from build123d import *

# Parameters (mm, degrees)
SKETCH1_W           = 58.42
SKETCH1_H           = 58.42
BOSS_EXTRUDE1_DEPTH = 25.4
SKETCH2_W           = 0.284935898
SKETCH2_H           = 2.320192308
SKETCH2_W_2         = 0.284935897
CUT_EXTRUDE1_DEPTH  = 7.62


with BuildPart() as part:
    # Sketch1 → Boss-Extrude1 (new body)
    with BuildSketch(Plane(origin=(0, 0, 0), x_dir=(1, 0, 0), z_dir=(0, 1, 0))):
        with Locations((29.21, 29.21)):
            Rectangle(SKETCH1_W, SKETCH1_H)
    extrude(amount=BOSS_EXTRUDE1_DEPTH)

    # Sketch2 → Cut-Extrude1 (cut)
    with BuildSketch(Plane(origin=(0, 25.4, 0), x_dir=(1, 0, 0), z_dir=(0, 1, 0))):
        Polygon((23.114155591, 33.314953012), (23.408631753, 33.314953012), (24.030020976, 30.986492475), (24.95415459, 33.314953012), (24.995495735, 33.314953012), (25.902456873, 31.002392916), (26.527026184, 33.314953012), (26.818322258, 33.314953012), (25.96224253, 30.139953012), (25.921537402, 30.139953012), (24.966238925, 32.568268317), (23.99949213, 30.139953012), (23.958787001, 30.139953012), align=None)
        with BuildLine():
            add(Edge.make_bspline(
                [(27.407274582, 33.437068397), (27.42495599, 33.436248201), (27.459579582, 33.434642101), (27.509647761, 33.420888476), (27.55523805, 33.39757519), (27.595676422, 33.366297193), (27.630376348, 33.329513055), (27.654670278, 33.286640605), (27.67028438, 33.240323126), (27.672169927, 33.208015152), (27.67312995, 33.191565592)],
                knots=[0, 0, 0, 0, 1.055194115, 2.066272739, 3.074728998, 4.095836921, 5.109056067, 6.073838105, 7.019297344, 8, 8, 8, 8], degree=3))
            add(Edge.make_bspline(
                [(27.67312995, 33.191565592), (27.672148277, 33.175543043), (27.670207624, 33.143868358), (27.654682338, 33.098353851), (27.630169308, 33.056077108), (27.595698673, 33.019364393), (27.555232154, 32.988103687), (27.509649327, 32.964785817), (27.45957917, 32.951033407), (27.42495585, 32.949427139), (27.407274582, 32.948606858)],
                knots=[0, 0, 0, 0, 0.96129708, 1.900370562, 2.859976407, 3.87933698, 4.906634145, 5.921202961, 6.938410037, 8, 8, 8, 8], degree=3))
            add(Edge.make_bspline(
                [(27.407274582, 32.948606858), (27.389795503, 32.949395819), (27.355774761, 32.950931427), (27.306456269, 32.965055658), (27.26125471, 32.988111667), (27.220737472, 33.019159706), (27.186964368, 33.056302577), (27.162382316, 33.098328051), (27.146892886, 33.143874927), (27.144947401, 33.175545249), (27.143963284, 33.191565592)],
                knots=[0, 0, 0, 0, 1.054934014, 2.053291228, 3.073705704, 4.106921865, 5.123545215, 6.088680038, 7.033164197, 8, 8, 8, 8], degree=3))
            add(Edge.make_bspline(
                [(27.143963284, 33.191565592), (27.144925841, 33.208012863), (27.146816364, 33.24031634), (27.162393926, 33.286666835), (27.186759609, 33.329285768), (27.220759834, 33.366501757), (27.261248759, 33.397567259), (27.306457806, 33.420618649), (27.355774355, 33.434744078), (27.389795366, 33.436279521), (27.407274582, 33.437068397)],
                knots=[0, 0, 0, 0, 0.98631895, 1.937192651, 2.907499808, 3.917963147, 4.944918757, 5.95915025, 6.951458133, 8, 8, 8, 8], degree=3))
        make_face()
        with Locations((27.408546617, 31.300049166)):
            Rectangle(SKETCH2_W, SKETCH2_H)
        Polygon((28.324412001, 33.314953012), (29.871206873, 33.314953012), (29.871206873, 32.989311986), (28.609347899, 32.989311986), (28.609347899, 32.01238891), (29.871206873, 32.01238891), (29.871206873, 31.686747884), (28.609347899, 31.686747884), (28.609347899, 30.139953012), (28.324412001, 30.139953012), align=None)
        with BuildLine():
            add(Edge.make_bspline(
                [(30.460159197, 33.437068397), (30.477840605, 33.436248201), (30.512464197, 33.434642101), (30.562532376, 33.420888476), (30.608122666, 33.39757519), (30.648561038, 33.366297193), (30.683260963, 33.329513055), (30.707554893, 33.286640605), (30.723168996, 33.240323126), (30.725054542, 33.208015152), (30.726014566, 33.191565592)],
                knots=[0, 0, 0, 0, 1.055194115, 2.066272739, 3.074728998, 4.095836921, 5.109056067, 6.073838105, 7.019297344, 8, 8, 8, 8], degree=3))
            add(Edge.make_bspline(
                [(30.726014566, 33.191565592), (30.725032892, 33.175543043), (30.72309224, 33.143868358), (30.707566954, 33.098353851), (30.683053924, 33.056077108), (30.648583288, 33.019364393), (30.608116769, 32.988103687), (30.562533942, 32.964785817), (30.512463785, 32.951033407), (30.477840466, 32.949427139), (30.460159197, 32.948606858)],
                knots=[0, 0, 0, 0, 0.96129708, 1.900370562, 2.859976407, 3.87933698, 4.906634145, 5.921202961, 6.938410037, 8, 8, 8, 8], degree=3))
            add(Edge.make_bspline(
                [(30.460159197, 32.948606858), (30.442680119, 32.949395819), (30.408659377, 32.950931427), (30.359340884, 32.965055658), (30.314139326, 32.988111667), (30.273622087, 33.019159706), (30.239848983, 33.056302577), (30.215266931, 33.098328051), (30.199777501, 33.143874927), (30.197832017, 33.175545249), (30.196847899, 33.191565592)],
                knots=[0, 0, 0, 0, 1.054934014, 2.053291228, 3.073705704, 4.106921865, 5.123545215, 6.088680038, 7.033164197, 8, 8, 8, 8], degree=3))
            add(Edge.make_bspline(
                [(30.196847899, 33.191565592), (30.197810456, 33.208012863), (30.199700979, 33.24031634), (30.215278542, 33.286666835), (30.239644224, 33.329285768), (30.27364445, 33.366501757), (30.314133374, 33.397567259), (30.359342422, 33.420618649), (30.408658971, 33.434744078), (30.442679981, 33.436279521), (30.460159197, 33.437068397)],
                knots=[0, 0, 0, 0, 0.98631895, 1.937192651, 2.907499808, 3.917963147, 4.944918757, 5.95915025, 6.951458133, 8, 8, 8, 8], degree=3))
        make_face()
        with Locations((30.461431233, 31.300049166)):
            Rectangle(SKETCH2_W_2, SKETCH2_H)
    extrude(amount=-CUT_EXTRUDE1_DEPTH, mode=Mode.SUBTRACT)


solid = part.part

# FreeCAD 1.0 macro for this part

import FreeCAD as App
import Part
import Sketcher
Q = App.Units.Quantity


def add_polygon(sketch, points):
    """Adds a closed chain of lines whose ends are joined by coincident constraints."""
    first, n = sketch.GeometryCount, len(points)
    for a, b in zip(points, points[1:] + points[:1]):
        sketch.addGeometry(Part.LineSegment(App.Vector(*a, 0), App.Vector(*b, 0)), False)
    for i in range(n):
        sketch.addConstraint(Sketcher.Constraint("Coincident", first + i, 2, first + (i + 1) % n, 1))

doc = App.newDocument("Part")
body = doc.addObject("PartDesign::Body", "Body")

sketch1 = body.newObject("Sketcher::SketchObject", "Sketch")
sketch1.AttachmentSupport = (doc.getObject("XZ_Plane"), [""])
sketch1.MapMode = "FlatFace"
add_polygon(sketch1, [(0, -58), (0, 0), (58, 0), (58, -58)])
sketch1.addConstraint([
    Sketcher.Constraint("Vertical", 0),
    Sketcher.Constraint("Horizontal", 1),
    Sketcher.Constraint("Vertical", 2),
    Sketcher.Constraint("Horizontal", 3),
    Sketcher.Constraint("Coincident", 0, 2, -1, 1),
    Sketcher.Constraint("Equal", 3, 0),
    Sketcher.Constraint("DistanceX", 1, 1, 1, 2, Q("2.3 in")),
])
pad1 = body.newObject("PartDesign::Pad", "Pad")
pad1.Profile = sketch1
pad1.Length = Q("1 in")
pad1.Reversed = True

sketch2 = body.newObject("Sketcher::SketchObject", "Sketch001")
sketch2.AttachmentSupport = (doc.getObject("XZ_Plane"), [""])
sketch2.MapMode = "FlatFace"
sketch2.AttachmentOffset = App.Placement(App.Vector(0, 0, -1 * 25.4), App.Rotation())
add_polygon(sketch2, [(23.408632, -33.314953), (23.114156, -33.314953), (23.958787, -30.139953), (23.999492, -30.139953), (24.966239, -32.568268), (25.921537, -30.139953), (25.962243, -30.139953), (26.818322, -33.314953), (26.527026, -33.314953), (25.902457, -31.002393), (24.995496, -33.314953), (24.954155, -33.314953), (24.030021, -30.986492)])
sketch2.addGeometry(Part.BSplineCurve([App.Vector(27.407275, -33.437068, 0), App.Vector(27.424956, -33.436248, 0), App.Vector(27.45958, -33.434642, 0), App.Vector(27.509648, -33.420888, 0), App.Vector(27.555238, -33.397575, 0), App.Vector(27.595676, -33.366297, 0), App.Vector(27.630376, -33.329513, 0), App.Vector(27.65467, -33.286641, 0), App.Vector(27.670284, -33.240323, 0), App.Vector(27.67217, -33.208015, 0), App.Vector(27.67313, -33.191566, 0)], [4, 1, 1, 1, 1, 1, 1, 1, 4], [0, 1.055194115, 2.066272739, 3.074728998, 4.095836921, 5.109056067, 6.073838105, 7.019297344, 8], False, 3, [1, 1, 1, 1, 1, 1, 1, 1, 1, 1, 1], False), False)
sketch2.addGeometry(Part.BSplineCurve([App.Vector(27.143963, -33.191566, 0), App.Vector(27.144926, -33.208013, 0), App.Vector(27.146816, -33.240316, 0), App.Vector(27.162394, -33.286667, 0), App.Vector(27.18676, -33.329286, 0), App.Vector(27.22076, -33.366502, 0), App.Vector(27.261249, -33.397567, 0), App.Vector(27.306458, -33.420619, 0), App.Vector(27.355774, -33.434744, 0), App.Vector(27.389795, -33.43628, 0), App.Vector(27.407275, -33.437068, 0)], [4, 1, 1, 1, 1, 1, 1, 1, 4], [0, 0.98631895, 1.937192651, 2.907499808, 3.917963147, 4.944918757, 5.95915025, 6.951458133, 8], False, 3, [1, 1, 1, 1, 1, 1, 1, 1, 1, 1, 1], False), False)
sketch2.addGeometry(Part.BSplineCurve([App.Vector(27.407275, -32.948607, 0), App.Vector(27.389796, -32.949396, 0), App.Vector(27.355775, -32.950931, 0), App.Vector(27.306456, -32.965056, 0), App.Vector(27.261255, -32.988112, 0), App.Vector(27.220737, -33.01916, 0), App.Vector(27.186964, -33.056303, 0), App.Vector(27.162382, -33.098328, 0), App.Vector(27.146893, -33.143875, 0), App.Vector(27.144947, -33.175545, 0), App.Vector(27.143963, -33.191566, 0)], [4, 1, 1, 1, 1, 1, 1, 1, 4], [0, 1.054934014, 2.053291228, 3.073705704, 4.106921865, 5.123545215, 6.088680038, 7.033164197, 8], False, 3, [1, 1, 1, 1, 1, 1, 1, 1, 1, 1, 1], False), False)
sketch2.addGeometry(Part.BSplineCurve([App.Vector(27.67313, -33.191566, 0), App.Vector(27.672148, -33.175543, 0), App.Vector(27.670208, -33.143868, 0), App.Vector(27.654682, -33.098354, 0), App.Vector(27.630169, -33.056077, 0), App.Vector(27.595699, -33.019364, 0), App.Vector(27.555232, -32.988104, 0), App.Vector(27.509649, -32.964786, 0), App.Vector(27.459579, -32.951033, 0), App.Vector(27.424956, -32.949427, 0), App.Vector(27.407275, -32.948607, 0)], [4, 1, 1, 1, 1, 1, 1, 1, 4], [0, 0.96129708, 1.900370562, 2.859976407, 3.87933698, 4.906634145, 5.921202961, 6.938410037, 8], False, 3, [1, 1, 1, 1, 1, 1, 1, 1, 1, 1, 1], False), False)
add_polygon(sketch2, [(27.266079, -32.460145), (27.266079, -30.139953), (27.551015, -30.139953), (27.551015, -32.460145)])
add_polygon(sketch2, [(29.871207, -33.314953), (28.324412, -33.314953), (28.324412, -30.139953), (28.609348, -30.139953), (28.609348, -31.686748), (29.871207, -31.686748), (29.871207, -32.012389), (28.609348, -32.012389), (28.609348, -32.989312), (29.871207, -32.989312)])
sketch2.addGeometry(Part.BSplineCurve([App.Vector(30.460159, -33.437068, 0), App.Vector(30.477841, -33.436248, 0), App.Vector(30.512464, -33.434642, 0), App.Vector(30.562532, -33.420888, 0), App.Vector(30.608123, -33.397575, 0), App.Vector(30.648561, -33.366297, 0), App.Vector(30.683261, -33.329513, 0), App.Vector(30.707555, -33.286641, 0), App.Vector(30.723169, -33.240323, 0), App.Vector(30.725055, -33.208015, 0), App.Vector(30.726015, -33.191566, 0)], [4, 1, 1, 1, 1, 1, 1, 1, 4], [0, 1.055194115, 2.066272739, 3.074728998, 4.095836921, 5.109056067, 6.073838105, 7.019297344, 8], False, 3, [1, 1, 1, 1, 1, 1, 1, 1, 1, 1, 1], False), False)
sketch2.addGeometry(Part.BSplineCurve([App.Vector(30.196848, -33.191566, 0), App.Vector(30.19781, -33.208013, 0), App.Vector(30.199701, -33.240316, 0), App.Vector(30.215279, -33.286667, 0), App.Vector(30.239644, -33.329286, 0), App.Vector(30.273644, -33.366502, 0), App.Vector(30.314133, -33.397567, 0), App.Vector(30.359342, -33.420619, 0), App.Vector(30.408659, -33.434744, 0), App.Vector(30.44268, -33.43628, 0), App.Vector(30.460159, -33.437068, 0)], [4, 1, 1, 1, 1, 1, 1, 1, 4], [0, 0.98631895, 1.937192651, 2.907499808, 3.917963147, 4.944918757, 5.95915025, 6.951458133, 8], False, 3, [1, 1, 1, 1, 1, 1, 1, 1, 1, 1, 1], False), False)
sketch2.addGeometry(Part.BSplineCurve([App.Vector(30.460159, -32.948607, 0), App.Vector(30.44268, -32.949396, 0), App.Vector(30.408659, -32.950931, 0), App.Vector(30.359341, -32.965056, 0), App.Vector(30.314139, -32.988112, 0), App.Vector(30.273622, -33.01916, 0), App.Vector(30.239849, -33.056303, 0), App.Vector(30.215267, -33.098328, 0), App.Vector(30.199778, -33.143875, 0), App.Vector(30.197832, -33.175545, 0), App.Vector(30.196848, -33.191566, 0)], [4, 1, 1, 1, 1, 1, 1, 1, 4], [0, 1.054934014, 2.053291228, 3.073705704, 4.106921865, 5.123545215, 6.088680038, 7.033164197, 8], False, 3, [1, 1, 1, 1, 1, 1, 1, 1, 1, 1, 1], False), False)
sketch2.addGeometry(Part.BSplineCurve([App.Vector(30.726015, -33.191566, 0), App.Vector(30.725033, -33.175543, 0), App.Vector(30.723092, -33.143868, 0), App.Vector(30.707567, -33.098354, 0), App.Vector(30.683054, -33.056077, 0), App.Vector(30.648583, -33.019364, 0), App.Vector(30.608117, -32.988104, 0), App.Vector(30.562534, -32.964786, 0), App.Vector(30.512464, -32.951033, 0), App.Vector(30.47784, -32.949427, 0), App.Vector(30.460159, -32.948607, 0)], [4, 1, 1, 1, 1, 1, 1, 1, 4], [0, 0.96129708, 1.900370562, 2.859976407, 3.87933698, 4.906634145, 5.921202961, 6.938410037, 8], False, 3, [1, 1, 1, 1, 1, 1, 1, 1, 1, 1, 1], False), False)
add_polygon(sketch2, [(30.318963, -32.460145), (30.318963, -30.139953), (30.603899, -30.139953), (30.603899, -32.460145)])
sketch2.addConstraint([
    Sketcher.Constraint("Block", 13),
    Sketcher.Constraint("Block", 14),
    Sketcher.Constraint("Block", 15),
    Sketcher.Constraint("Block", 16),
    Sketcher.Constraint("Block", 31),
    Sketcher.Constraint("Block", 32),
    Sketcher.Constraint("Block", 33),
    Sketcher.Constraint("Block", 34),
    Sketcher.Constraint("Horizontal", 0),
    Sketcher.Constraint("Horizontal", 2),
    Sketcher.Constraint("Horizontal", 5),
    Sketcher.Constraint("Horizontal", 7),
    Sketcher.Constraint("Horizontal", 10),
    Sketcher.Constraint("Vertical", 17),
    Sketcher.Constraint("Horizontal", 18),
    Sketcher.Constraint("Vertical", 19),
    Sketcher.Constraint("Horizontal", 20),
    Sketcher.Constraint("Horizontal", 21),
    Sketcher.Constraint("Vertical", 22),
    Sketcher.Constraint("Horizontal", 23),
    Sketcher.Constraint("Vertical", 24),
    Sketcher.Constraint("Horizontal", 25),
    Sketcher.Constraint("Vertical", 26),
    Sketcher.Constraint("Horizontal", 27),
    Sketcher.Constraint("Vertical", 28),
    Sketcher.Constraint("Horizontal", 29),
    Sketcher.Constraint("Vertical", 30),
    Sketcher.Constraint("Vertical", 35),
    Sketcher.Constraint("Horizontal", 36),
    Sketcher.Constraint("Vertical", 37),
    Sketcher.Constraint("Horizontal", 38),
    Sketcher.Constraint("Horizontal", 2, 2, 4, 2),
    Sketcher.Constraint("Horizontal", 0, 2, 6, 2),
    Sketcher.Constraint("Horizontal", 7, 2, 9, 2),
    Sketcher.Constraint("Horizontal", 5, 2, 17, 2),
    Sketcher.Constraint("Horizontal", 12, 2, 21, 2),
    Sketcher.Constraint("Horizontal", 18, 2, 22, 2),
    Sketcher.Constraint("Horizontal", 23, 2, 35, 2),
    Sketcher.Constraint("Horizontal", 20, 2, 37, 2),
    Sketcher.Constraint("Vertical", 24, 2, 27, 2),
    Sketcher.Constraint("Vertical", 26, 2, 29, 2),
    Sketcher.Constraint("Equal", 2, 5),
    Sketcher.Constraint("Equal", 20, 23),
    Sketcher.Constraint("Equal", 23, 36),
    Sketcher.Constraint("Equal", 21, 24),
    Sketcher.Constraint("Equal", 26, 30),
    Sketcher.Constraint("DistanceY", 22, 1, 22, 2, Q("0.125 in")),
    Sketcher.Constraint("DistanceX", 10, 2, 10, 1, Q("0.041341 mm")),
    Sketcher.Constraint("DistanceX", 25, 1, 25, 2, Q("1.261859 mm")),
    Sketcher.Constraint("DistanceY", 26, 2, 26, 1, Q("0.325641 mm")),
    Sketcher.Constraint("DistanceX", -1, 1, 36, 2, Q("30.603899 mm")),
    Sketcher.Constraint("DistanceX", 3, 2, 4, 2, Q("0.955298 mm")),
    Sketcher.Constraint("DistanceX", 0, 2, 10, 2, Q("1.839999 mm")),
    Sketcher.Constraint("DistanceY", 8, 2, 11, 2, Q("0.0159 mm")),
    Sketcher.Constraint("Distance", 3, Q("2.613678 mm")),
    Sketcher.Constraint("Distance", 6, Q("3.288388 mm")),
    Sketcher.Constraint("Distance", 9, Q("2.484052 mm")),
    Sketcher.Constraint("Distance", 12, Q("2.409949 mm")),
    Sketcher.Constraint("DistanceX", 0, 2, 0, 1, Q("0.294476 mm")),
    Sketcher.Constraint("DistanceX", 2, 1, 2, 2, Q("0.040705 mm")),
    Sketcher.Constraint("DistanceX", 7, 2, 7, 1, Q("0.291296 mm")),
    Sketcher.Constraint("DistanceX", 18, 1, 18, 2, Q("0.284936 mm")),
    Sketcher.Constraint("DistanceY", 17, 1, 17, 2, Q("2.320192 mm")),
    Sketcher.Constraint("DistanceX", -1, 1, 3, 2, Q("24.966239 mm")),
    Sketcher.Constraint("DistanceY", 3, 2, -1, 1, Q("32.568268 mm")),
    Sketcher.Constraint("DistanceX", -1, 1, 11, 2, Q("24.030021 mm")),
    Sketcher.Constraint("DistanceX", -1, 1, 12, 2, Q("23.408632 mm")),
    Sketcher.Constraint("DistanceX", -1, 1, 17, 2, Q("27.266079 mm")),
    Sketcher.Constraint("DistanceY", 26, 2, -1, 1, Q("32.012389 mm")),
    Sketcher.Constraint("DistanceX", 6, 2, 21, 2, Q("1.50609 mm")),
])
pocket1 = body.newObject("PartDesign::Pocket", "Pocket")
pocket1.Profile = sketch2
pocket1.Length = Q("0.3 in")
pocket1.Reversed = True

doc.recompute()
